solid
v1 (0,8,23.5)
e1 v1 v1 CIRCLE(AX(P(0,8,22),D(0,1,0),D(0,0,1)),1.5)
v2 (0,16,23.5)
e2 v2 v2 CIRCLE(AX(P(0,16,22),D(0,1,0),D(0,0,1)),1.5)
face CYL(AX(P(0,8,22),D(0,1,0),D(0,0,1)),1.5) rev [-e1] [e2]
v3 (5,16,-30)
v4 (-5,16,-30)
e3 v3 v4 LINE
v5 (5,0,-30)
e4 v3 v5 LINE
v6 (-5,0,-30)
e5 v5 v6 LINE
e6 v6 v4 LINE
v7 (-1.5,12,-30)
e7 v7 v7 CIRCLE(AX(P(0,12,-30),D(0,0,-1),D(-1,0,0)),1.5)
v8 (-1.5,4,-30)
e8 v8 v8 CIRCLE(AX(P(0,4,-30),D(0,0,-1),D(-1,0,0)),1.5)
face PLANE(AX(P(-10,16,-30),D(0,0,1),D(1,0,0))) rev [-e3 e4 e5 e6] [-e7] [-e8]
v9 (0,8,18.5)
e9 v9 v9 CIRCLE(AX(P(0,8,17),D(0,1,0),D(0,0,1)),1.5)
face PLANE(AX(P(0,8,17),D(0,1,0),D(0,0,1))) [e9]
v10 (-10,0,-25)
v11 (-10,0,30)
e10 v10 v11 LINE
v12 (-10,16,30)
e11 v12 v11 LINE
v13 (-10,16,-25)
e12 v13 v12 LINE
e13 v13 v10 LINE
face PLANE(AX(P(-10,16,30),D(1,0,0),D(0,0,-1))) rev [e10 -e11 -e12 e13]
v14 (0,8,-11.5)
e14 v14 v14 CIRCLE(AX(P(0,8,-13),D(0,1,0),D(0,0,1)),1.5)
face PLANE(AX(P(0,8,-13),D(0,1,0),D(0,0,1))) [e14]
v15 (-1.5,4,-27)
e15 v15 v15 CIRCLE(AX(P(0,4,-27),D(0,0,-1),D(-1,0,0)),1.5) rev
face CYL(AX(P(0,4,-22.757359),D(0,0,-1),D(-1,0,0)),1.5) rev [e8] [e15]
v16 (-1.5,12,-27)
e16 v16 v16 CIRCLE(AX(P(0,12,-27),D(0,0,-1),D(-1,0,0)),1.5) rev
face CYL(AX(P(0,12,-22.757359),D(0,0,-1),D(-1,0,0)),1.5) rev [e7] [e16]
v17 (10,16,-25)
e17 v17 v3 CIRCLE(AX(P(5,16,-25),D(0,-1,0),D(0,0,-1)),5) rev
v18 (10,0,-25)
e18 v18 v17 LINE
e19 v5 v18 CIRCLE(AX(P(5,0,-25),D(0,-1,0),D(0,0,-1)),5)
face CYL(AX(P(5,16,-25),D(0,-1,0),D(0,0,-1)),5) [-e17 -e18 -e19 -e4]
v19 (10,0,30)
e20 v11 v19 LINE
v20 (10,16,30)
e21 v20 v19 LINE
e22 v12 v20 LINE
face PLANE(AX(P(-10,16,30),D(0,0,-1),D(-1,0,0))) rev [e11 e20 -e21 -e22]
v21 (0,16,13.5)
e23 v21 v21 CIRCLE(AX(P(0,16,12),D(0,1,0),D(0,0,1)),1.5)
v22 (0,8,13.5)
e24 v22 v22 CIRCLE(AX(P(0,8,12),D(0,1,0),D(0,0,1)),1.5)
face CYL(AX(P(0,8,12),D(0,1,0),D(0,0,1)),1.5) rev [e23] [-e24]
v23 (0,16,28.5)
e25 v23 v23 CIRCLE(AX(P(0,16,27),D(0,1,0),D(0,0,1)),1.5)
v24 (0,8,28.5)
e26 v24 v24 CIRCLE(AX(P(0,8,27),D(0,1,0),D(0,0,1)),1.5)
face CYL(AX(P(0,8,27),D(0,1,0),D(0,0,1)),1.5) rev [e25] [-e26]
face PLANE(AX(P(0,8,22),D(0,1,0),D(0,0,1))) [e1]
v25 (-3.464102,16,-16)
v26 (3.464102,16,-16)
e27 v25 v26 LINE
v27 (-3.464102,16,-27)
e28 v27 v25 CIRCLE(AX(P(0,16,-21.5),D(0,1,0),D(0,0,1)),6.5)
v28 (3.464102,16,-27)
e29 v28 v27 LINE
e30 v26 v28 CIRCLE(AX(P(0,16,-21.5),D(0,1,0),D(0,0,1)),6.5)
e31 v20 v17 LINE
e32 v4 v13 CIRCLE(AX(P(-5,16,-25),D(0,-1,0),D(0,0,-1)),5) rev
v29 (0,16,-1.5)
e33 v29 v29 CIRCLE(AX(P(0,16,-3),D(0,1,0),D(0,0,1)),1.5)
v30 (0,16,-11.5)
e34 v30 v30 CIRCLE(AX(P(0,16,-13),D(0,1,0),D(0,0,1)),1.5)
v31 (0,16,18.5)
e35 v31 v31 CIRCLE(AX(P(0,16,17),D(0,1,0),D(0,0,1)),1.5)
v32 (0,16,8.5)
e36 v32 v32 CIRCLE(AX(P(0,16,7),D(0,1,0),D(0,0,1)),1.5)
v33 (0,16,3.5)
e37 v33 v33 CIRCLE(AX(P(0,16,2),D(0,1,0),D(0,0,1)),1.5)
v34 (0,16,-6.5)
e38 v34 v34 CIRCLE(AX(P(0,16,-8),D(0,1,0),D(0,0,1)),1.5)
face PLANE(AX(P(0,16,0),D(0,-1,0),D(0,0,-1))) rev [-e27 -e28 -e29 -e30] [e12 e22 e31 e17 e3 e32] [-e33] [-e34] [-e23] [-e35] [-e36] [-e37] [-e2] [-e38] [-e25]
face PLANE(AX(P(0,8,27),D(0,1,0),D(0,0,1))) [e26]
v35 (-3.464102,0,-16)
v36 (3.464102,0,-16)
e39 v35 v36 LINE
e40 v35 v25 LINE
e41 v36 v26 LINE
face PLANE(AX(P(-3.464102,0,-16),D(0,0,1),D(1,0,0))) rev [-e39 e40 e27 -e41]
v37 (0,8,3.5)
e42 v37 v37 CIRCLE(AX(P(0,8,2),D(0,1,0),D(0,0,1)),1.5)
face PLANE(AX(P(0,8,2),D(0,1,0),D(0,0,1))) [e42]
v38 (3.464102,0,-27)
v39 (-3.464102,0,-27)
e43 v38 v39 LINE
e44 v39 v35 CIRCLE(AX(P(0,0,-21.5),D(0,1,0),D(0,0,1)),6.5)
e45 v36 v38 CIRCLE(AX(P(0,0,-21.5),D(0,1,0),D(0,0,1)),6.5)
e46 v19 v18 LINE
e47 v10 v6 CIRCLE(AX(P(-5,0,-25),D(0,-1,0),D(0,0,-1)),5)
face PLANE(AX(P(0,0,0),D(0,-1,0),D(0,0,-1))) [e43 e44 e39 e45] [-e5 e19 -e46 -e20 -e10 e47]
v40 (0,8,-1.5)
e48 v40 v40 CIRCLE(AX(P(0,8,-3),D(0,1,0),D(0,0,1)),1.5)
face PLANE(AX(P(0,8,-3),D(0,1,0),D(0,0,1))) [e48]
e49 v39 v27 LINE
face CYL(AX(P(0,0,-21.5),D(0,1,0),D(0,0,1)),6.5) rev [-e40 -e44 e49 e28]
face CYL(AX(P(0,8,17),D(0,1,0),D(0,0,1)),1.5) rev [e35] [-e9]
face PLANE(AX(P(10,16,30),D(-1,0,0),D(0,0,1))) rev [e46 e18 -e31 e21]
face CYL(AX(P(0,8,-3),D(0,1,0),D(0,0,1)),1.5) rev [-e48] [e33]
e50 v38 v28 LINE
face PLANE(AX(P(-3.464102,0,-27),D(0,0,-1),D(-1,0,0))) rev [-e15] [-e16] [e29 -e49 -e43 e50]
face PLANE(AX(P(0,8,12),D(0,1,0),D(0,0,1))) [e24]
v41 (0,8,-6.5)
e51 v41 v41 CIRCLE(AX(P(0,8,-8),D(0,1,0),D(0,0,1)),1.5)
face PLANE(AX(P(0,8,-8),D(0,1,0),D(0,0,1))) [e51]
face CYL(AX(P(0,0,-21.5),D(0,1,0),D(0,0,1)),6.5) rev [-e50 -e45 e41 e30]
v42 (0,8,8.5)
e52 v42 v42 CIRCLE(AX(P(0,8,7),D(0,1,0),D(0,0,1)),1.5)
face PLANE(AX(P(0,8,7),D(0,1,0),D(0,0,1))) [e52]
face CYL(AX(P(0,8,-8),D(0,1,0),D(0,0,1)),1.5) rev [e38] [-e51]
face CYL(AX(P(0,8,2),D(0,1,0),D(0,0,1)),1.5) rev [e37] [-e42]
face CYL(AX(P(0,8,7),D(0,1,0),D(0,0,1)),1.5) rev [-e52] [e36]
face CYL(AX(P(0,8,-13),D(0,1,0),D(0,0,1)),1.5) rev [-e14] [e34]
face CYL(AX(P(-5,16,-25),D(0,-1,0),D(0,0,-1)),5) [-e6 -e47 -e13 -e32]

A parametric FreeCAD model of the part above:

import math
import FreeCAD as App
import Part
import Sketcher


def edges_at(feature, points):
    """Names of the edges that pass closest to the given points."""
    edges = feature.Shape.Edges
    near = lambda p: min(range(len(edges)), key=lambda i: edges[i].distToShape(Part.Vertex(*p))[0])
    return sorted({f"Edge{near(p) + 1}" for p in points})


def add_polygon(sketch, points):
    """Adds a closed chain of lines whose ends are joined by coincident constraints."""
    first, n = sketch.GeometryCount, len(points)
    for a, b in zip(points, points[1:] + points[:1]):
        sketch.addGeometry(Part.LineSegment(App.Vector(*a, 0), App.Vector(*b, 0)), False)
    for i in range(n):
        sketch.addConstraint(Sketcher.Constraint("Coincident", first + i, 2, first + (i + 1) % n, 1))

doc = App.newDocument("Part")
body = doc.addObject("PartDesign::Body", "Body")

# Sketch on XZ plane
sketch1 = body.newObject("Sketcher::SketchObject", "Sketch")
sketch1.AttachmentSupport = (doc.getObject("XZ_Plane"), [""])
sketch1.MapMode = "FlatFace"
add_polygon(sketch1, [(-10, -30), (-10, 30), (10, 30), (10, -30)])  # lines 0-3
sketch1.addConstraint([
    Sketcher.Constraint("Vertical", 0),
    Sketcher.Constraint("Horizontal", 1),
    Sketcher.Constraint("Vertical", 2),
    Sketcher.Constraint("Horizontal", 3),
    Sketcher.Constraint("Symmetric", 0, 2, 2, 2, -1, 1),
    Sketcher.Constraint("DistanceX", 1, 1, 1, 2, 20.0),
    Sketcher.Constraint("DistanceY", 0, 1, 0, 2, 60.0),
])
pad1 = body.newObject("PartDesign::Pad", "Pad")
pad1.Profile = sketch1
pad1.Length = 16
pad1.Reversed = True

# Sketch on XZ plane
sketch2 = body.newObject("Sketcher::SketchObject", "Sketch001")
sketch2.AttachmentSupport = (doc.getObject("XZ_Plane"), [""])
sketch2.MapMode = "FlatFace"
sketch2.AttachmentOffset = App.Placement(App.Vector(0, 0, -16), App.Rotation())
sketch2.addGeometry([
    Part.LineSegment(App.Vector(3, -27, 0), App.Vector(-3, -27, 0)),
    Part.ArcOfCircle(Part.Circle(App.Vector(0, -22, 0), App.Vector(0, 0, 1), 6), math.radians(122), math.radians(238)),
    Part.LineSegment(App.Vector(-3, -16, 0), App.Vector(3, -16, 0)),
    Part.ArcOfCircle(Part.Circle(App.Vector(0, -22, 0), App.Vector(0, 0, 1), 6), math.radians(-58), math.radians(58)),
], False)
sketch2.addConstraint([
    Sketcher.Constraint("Coincident", 0, 2, 1, 2),
    Sketcher.Constraint("Coincident", 1, 1, 2, 1),
    Sketcher.Constraint("Coincident", 2, 2, 3, 2),
    Sketcher.Constraint("Coincident", 3, 1, 0, 1),
    Sketcher.Constraint("Horizontal", 0),
    Sketcher.Constraint("Horizontal", 2),
    Sketcher.Constraint("Coincident", 3, 3, 1, 3),
    Sketcher.Constraint("Equal", 1, 3),
    Sketcher.Constraint("PointOnObject", 1, 3, -2),
    Sketcher.Constraint("Vertical", 0, 2, 1, 1),
    Sketcher.Constraint("Radius", 1, 6.5),
    Sketcher.Constraint("DistanceY", 0, 2, -1, 1, 27.0),
    Sketcher.Constraint("DistanceY", 1, 1, -1, 1, 16.0),
])
pocket1 = body.newObject("PartDesign::Pocket", "Pocket")
pocket1.Profile = sketch2
pocket1.Type = "ThroughAll"
pocket1.Reversed = True

# Sketch on XY plane
sketch3 = body.newObject("Sketcher::SketchObject", "Sketch002")
sketch3.AttachmentSupport = (doc.getObject("XY_Plane"), [""])
sketch3.MapMode = "FlatFace"
sketch3.AttachmentOffset = App.Placement(App.Vector(0, 0, -30), App.Rotation())
sketch3.addGeometry([
    Part.Circle(App.Vector(0, 12, 0), App.Vector(0, 0, 1), 1.5),
    Part.Circle(App.Vector(0, 4, 0), App.Vector(0, 0, 1), 1.5),
], False)
sketch3.addConstraint([
    Sketcher.Constraint("Equal", 0, 1),
    Sketcher.Constraint("PointOnObject", 0, 3, -2),
    Sketcher.Constraint("PointOnObject", 1, 3, -2),
    Sketcher.Constraint("Diameter", 0, 3.0),
    Sketcher.Constraint("DistanceY", -1, 1, 0, 3, 12.0),
    Sketcher.Constraint("DistanceY", -1, 1, 1, 3, 4.0),
])
pocket2 = body.newObject("PartDesign::Pocket", "Pocket001")
pocket2.Profile = sketch3
pocket2.Length = 3
pocket2.Reversed = True

# Sketch on XZ plane
sketch4 = body.newObject("Sketcher::SketchObject", "Sketch003")
sketch4.AttachmentSupport = (doc.getObject("XZ_Plane"), [""])
sketch4.MapMode = "FlatFace"
sketch4.AttachmentOffset = App.Placement(App.Vector(0, 0, -16), App.Rotation())
sketch4.addGeometry([
    Part.Circle(App.Vector(0, -13, 0), App.Vector(0, 0, 1), 1.5),  # 0
    Part.Circle(App.Vector(0, -8, 0), App.Vector(0, 0, 1), 1.5),  # 1
    Part.Circle(App.Vector(0, -3, 0), App.Vector(0, 0, 1), 1.5),  # 2
    Part.Circle(App.Vector(0, 2, 0), App.Vector(0, 0, 1), 1.5),  # 3
    Part.Circle(App.Vector(0, 7, 0), App.Vector(0, 0, 1), 1.5),  # 4
    Part.Circle(App.Vector(0, 12, 0), App.Vector(0, 0, 1), 1.5),  # 5
    Part.Circle(App.Vector(0, 17, 0), App.Vector(0, 0, 1), 1.5),  # 6
    Part.Circle(App.Vector(0, 22, 0), App.Vector(0, 0, 1), 1.5),  # 7
    Part.Circle(App.Vector(0, 27, 0), App.Vector(0, 0, 1), 1.5),  # 8
], False)
sketch4.addConstraint([
    Sketcher.Constraint("Equal", 0, 1),
    Sketcher.Constraint("Equal", 1, 2),
    Sketcher.Constraint("Equal", 2, 3),
    Sketcher.Constraint("Equal", 3, 4),
    Sketcher.Constraint("Equal", 4, 5),
    Sketcher.Constraint("Equal", 5, 6),
    Sketcher.Constraint("Equal", 6, 7),
    Sketcher.Constraint("Equal", 7, 8),
    Sketcher.Constraint("PointOnObject", 0, 3, -2),
    Sketcher.Constraint("PointOnObject", 1, 3, -2),
    Sketcher.Constraint("PointOnObject", 2, 3, -2),
    Sketcher.Constraint("PointOnObject", 3, 3, -2),
    Sketcher.Constraint("PointOnObject", 4, 3, -2),
    Sketcher.Constraint("PointOnObject", 5, 3, -2),
    Sketcher.Constraint("PointOnObject", 6, 3, -2),
    Sketcher.Constraint("PointOnObject", 7, 3, -2),
    Sketcher.Constraint("PointOnObject", 8, 3, -2),
    Sketcher.Constraint("Diameter", 0, 3.0),
    Sketcher.Constraint("DistanceY", 0, 3, -1, 1, 13.0),
    Sketcher.Constraint("DistanceY", 1, 3, -1, 1, 8.0),
    Sketcher.Constraint("DistanceY", 2, 3, -1, 1, 3.0),
    Sketcher.Constraint("DistanceY", -1, 1, 3, 3, 2.0),
    Sketcher.Constraint("DistanceY", -1, 1, 4, 3, 7.0),
    Sketcher.Constraint("DistanceY", -1, 1, 5, 3, 12.0),
    Sketcher.Constraint("DistanceY", -1, 1, 6, 3, 17.0),
    Sketcher.Constraint("DistanceY", -1, 1, 7, 3, 22.0),
    Sketcher.Constraint("DistanceY", -1, 1, 8, 3, 27.0),
])
pocket3 = body.newObject("PartDesign::Pocket", "Pocket002")
pocket3.Profile = sketch4
pocket3.Length = 8
pocket3.Reversed = True
doc.recompute()

fillet = body.newObject("PartDesign::Fillet", "Fillet")
fillet.Base = (pocket3, edges_at(pocket3, [(-10, 8, -30), (10, 8, -30)]))
fillet.Radius = 5

doc.recompute()
